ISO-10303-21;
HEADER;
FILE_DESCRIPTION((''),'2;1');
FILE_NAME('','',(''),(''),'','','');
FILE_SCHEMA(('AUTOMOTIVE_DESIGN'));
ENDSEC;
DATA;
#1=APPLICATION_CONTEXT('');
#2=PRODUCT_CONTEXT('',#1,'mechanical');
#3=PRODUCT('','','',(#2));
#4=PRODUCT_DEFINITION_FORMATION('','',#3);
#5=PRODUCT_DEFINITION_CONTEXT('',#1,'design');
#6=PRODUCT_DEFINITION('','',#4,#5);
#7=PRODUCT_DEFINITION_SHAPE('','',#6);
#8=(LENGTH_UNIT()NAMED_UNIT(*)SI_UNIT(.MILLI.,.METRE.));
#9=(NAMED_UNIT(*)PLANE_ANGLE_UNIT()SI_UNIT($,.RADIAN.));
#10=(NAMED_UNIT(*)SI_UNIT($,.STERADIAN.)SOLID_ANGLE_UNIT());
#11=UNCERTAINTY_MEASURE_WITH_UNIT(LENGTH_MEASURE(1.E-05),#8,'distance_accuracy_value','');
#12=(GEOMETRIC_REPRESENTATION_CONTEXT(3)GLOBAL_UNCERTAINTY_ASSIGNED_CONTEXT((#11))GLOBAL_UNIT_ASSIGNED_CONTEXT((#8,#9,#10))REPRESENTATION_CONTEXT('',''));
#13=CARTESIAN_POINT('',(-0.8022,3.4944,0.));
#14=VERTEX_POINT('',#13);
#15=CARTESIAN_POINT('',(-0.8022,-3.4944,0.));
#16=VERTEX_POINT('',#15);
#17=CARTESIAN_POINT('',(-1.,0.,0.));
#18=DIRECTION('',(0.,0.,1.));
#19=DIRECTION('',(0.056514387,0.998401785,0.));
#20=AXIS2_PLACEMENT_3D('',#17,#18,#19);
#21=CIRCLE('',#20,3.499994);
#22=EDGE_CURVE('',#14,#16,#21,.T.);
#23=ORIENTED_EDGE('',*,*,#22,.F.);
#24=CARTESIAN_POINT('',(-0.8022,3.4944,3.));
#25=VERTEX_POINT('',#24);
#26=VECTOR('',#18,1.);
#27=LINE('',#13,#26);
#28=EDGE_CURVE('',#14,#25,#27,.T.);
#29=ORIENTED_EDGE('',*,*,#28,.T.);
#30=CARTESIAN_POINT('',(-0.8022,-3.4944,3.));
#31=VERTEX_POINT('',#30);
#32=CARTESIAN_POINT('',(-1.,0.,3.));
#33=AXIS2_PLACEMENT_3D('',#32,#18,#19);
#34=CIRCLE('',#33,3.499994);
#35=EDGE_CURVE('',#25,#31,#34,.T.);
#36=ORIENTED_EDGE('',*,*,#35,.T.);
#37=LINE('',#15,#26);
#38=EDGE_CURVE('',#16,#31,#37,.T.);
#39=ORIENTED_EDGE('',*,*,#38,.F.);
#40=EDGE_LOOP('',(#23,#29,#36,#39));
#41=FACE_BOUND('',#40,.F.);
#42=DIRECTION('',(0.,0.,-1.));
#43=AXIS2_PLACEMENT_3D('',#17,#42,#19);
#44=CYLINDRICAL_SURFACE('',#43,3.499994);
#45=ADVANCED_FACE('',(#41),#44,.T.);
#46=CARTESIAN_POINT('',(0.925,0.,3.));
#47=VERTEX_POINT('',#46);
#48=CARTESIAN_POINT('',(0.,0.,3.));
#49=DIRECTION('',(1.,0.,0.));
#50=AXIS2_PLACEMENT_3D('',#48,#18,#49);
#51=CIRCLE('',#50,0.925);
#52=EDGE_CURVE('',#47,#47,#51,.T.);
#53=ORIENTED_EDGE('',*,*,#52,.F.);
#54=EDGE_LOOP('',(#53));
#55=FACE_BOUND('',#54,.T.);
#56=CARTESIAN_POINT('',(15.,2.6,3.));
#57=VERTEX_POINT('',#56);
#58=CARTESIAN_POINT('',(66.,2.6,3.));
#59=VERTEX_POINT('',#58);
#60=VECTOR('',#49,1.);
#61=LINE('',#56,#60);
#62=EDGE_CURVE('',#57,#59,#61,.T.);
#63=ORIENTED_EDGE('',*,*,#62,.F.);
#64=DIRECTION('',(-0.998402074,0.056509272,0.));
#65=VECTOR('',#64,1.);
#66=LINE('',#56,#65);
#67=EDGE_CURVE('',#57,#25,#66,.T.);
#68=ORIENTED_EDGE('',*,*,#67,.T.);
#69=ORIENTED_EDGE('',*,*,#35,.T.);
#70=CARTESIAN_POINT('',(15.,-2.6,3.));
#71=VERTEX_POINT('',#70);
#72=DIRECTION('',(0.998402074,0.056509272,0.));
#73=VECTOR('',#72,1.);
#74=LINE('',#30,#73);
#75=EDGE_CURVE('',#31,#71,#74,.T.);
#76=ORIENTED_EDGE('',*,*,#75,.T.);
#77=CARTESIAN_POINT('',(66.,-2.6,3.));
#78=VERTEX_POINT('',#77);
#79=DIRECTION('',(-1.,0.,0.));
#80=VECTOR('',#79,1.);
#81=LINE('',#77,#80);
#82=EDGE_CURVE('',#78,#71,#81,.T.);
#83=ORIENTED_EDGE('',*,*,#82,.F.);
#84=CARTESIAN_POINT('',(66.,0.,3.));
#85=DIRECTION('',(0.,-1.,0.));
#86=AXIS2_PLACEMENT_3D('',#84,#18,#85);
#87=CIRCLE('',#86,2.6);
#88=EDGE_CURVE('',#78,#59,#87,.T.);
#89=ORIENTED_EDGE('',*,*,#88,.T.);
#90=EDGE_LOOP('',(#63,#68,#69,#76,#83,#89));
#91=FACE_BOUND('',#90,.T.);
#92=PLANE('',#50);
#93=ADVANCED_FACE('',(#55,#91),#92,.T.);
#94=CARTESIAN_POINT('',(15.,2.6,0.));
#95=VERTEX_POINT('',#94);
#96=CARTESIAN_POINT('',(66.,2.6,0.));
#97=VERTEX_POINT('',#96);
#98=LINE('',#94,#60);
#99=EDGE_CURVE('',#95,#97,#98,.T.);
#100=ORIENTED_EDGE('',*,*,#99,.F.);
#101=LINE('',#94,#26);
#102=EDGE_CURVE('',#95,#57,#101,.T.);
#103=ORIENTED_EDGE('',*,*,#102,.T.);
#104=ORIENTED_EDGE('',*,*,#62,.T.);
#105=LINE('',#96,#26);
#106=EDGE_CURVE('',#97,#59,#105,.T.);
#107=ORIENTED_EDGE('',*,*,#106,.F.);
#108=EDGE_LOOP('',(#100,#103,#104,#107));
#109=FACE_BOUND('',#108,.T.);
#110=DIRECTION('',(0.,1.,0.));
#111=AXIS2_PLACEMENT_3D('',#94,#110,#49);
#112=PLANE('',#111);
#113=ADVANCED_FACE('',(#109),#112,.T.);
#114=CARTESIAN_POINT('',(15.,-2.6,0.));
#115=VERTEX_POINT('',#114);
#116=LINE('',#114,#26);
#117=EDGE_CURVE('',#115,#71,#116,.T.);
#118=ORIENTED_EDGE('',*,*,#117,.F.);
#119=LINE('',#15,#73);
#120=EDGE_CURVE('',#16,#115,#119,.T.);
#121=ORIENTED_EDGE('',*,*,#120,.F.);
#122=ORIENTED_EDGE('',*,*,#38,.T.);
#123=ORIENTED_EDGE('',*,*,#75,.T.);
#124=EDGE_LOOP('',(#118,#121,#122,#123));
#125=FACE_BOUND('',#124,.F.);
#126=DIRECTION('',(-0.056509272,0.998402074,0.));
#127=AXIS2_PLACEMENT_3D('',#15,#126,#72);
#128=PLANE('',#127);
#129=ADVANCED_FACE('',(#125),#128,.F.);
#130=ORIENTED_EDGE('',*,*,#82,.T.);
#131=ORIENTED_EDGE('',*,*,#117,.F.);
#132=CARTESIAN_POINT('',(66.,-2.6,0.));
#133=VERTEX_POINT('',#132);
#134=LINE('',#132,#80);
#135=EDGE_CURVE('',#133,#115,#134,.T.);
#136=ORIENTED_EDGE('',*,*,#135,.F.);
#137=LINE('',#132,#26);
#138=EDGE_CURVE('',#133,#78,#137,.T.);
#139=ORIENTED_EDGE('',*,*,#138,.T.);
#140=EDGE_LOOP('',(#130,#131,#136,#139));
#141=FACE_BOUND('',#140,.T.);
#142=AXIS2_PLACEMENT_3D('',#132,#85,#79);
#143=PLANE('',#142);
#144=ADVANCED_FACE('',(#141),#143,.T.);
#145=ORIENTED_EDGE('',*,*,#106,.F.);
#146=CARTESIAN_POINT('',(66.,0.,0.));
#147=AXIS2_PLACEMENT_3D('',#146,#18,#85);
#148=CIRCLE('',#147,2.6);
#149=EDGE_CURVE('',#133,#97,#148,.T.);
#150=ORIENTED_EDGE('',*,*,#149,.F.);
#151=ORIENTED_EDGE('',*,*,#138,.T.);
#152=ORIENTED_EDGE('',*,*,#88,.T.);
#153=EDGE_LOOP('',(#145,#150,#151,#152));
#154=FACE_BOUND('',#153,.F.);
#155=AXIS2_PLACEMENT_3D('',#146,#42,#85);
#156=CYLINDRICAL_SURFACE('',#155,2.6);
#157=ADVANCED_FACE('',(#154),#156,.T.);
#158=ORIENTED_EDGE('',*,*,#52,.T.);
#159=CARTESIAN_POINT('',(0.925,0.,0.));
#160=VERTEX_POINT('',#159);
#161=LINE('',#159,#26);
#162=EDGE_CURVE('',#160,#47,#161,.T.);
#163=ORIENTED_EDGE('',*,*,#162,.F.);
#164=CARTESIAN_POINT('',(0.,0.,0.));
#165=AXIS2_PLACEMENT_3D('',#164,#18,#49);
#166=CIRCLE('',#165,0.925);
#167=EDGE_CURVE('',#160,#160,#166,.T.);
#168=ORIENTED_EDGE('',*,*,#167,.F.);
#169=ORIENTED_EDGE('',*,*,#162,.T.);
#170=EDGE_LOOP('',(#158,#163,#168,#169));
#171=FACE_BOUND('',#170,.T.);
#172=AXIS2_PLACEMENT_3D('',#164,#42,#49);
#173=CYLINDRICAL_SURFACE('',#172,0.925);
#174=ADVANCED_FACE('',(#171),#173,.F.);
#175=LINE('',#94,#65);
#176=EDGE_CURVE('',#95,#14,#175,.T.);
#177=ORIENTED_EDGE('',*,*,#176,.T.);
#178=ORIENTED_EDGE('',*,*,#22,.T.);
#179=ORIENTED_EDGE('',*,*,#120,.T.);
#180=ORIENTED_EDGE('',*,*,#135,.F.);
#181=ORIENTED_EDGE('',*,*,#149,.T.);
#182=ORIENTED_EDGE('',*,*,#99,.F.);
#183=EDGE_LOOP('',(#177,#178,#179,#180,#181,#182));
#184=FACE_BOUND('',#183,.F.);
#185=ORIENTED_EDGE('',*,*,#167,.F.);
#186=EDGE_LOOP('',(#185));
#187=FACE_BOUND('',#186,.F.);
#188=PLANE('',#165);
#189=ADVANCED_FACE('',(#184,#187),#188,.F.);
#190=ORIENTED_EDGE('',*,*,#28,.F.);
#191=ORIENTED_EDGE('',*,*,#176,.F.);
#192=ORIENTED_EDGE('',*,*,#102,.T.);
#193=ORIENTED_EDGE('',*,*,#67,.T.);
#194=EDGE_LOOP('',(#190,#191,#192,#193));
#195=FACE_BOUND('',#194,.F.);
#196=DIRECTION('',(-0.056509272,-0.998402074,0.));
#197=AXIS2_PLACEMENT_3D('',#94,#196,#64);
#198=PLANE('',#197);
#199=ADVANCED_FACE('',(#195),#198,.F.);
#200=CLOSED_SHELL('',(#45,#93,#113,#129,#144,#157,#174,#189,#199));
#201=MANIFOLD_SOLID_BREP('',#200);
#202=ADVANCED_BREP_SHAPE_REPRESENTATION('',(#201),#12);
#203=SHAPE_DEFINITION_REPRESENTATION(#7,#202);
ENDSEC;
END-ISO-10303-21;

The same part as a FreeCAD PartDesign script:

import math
import FreeCAD as App
import Part
import Sketcher

V = App.Vector

doc = App.newDocument("Part")
body = doc.addObject("PartDesign::Body", "Body")

sketch1 = body.newObject("Sketcher::SketchObject", "Sketch")
sketch1.AttachmentSupport = (doc.getObject("XY_Plane"), [""])
sketch1.MapMode = "FlatFace"
sketch1.addGeometry(Part.LineSegment(V(66, 2.6, 0), V(15, 2.6, 0)), False)
sketch1.addGeometry(Part.LineSegment(V(15, 2.6, 0), V(-0.8, 3.5, 0)), False)
sketch1.addGeometry(Part.ArcOfCircle(Part.Circle(V(-1, 0, 0), V(0, 0, 1), 3.5), math.radians(87), math.radians(273)), False)
sketch1.addGeometry(Part.LineSegment(V(-0.8, -3.5, 0), V(15, -2.6, 0)), False)
sketch1.addGeometry(Part.LineSegment(V(15, -2.6, 0), V(66, -2.6, 0)), False)
sketch1.addGeometry(Part.ArcOfCircle(Part.Circle(V(66, 0, 0), V(0, 0, 1), 2.6), math.radians(-90), math.radians(90)), False)
sketch1.addGeometry(Part.Circle(V(0, 0, 0), V(0, 0, 1), 0.9), False)
sketch1.addConstraint(Sketcher.Constraint("Coincident", 0, 2, 1, 1))
sketch1.addConstraint(Sketcher.Constraint("Tangent", 1, 2, 2, 1))
sketch1.addConstraint(Sketcher.Constraint("Tangent", 2, 2, 3, 1))
sketch1.addConstraint(Sketcher.Constraint("Coincident", 3, 2, 4, 1))
sketch1.addConstraint(Sketcher.Constraint("Tangent", 4, 2, 5, 1))
sketch1.addConstraint(Sketcher.Constraint("Tangent", 5, 2, 0, 1))
sketch1.addConstraint(Sketcher.Constraint("Horizontal", 0))
sketch1.addConstraint(Sketcher.Constraint("Horizontal", 4))
sketch1.addConstraint(Sketcher.Constraint("Coincident", 6, 3, -1, 1))
sketch1.addConstraint(Sketcher.Constraint("Symmetric", 1, 2, 2, 2, -1))
sketch1.addConstraint(Sketcher.Constraint("PointOnObject", 5, 3, -1))
sketch1.addConstraint(Sketcher.Constraint("Radius", 2, 3.5))
sketch1.addConstraint(Sketcher.Constraint("Radius", 5, 2.6))
sketch1.addConstraint(Sketcher.Constraint("Diameter", 6, 1.85))
sketch1.addConstraint(Sketcher.Constraint("DistanceX", 2, 3, -1, 1, 1.0))
sketch1.addConstraint(Sketcher.Constraint("DistanceX", -1, 1, 5, 3, 66.0))
sketch1.addConstraint(Sketcher.Constraint("DistanceX", 2, 3, 0, 2, 16.0))
pad1 = body.newObject("PartDesign::Pad", "Pad")
pad1.Profile = sketch1
pad1.Length = 3

doc.recompute()
